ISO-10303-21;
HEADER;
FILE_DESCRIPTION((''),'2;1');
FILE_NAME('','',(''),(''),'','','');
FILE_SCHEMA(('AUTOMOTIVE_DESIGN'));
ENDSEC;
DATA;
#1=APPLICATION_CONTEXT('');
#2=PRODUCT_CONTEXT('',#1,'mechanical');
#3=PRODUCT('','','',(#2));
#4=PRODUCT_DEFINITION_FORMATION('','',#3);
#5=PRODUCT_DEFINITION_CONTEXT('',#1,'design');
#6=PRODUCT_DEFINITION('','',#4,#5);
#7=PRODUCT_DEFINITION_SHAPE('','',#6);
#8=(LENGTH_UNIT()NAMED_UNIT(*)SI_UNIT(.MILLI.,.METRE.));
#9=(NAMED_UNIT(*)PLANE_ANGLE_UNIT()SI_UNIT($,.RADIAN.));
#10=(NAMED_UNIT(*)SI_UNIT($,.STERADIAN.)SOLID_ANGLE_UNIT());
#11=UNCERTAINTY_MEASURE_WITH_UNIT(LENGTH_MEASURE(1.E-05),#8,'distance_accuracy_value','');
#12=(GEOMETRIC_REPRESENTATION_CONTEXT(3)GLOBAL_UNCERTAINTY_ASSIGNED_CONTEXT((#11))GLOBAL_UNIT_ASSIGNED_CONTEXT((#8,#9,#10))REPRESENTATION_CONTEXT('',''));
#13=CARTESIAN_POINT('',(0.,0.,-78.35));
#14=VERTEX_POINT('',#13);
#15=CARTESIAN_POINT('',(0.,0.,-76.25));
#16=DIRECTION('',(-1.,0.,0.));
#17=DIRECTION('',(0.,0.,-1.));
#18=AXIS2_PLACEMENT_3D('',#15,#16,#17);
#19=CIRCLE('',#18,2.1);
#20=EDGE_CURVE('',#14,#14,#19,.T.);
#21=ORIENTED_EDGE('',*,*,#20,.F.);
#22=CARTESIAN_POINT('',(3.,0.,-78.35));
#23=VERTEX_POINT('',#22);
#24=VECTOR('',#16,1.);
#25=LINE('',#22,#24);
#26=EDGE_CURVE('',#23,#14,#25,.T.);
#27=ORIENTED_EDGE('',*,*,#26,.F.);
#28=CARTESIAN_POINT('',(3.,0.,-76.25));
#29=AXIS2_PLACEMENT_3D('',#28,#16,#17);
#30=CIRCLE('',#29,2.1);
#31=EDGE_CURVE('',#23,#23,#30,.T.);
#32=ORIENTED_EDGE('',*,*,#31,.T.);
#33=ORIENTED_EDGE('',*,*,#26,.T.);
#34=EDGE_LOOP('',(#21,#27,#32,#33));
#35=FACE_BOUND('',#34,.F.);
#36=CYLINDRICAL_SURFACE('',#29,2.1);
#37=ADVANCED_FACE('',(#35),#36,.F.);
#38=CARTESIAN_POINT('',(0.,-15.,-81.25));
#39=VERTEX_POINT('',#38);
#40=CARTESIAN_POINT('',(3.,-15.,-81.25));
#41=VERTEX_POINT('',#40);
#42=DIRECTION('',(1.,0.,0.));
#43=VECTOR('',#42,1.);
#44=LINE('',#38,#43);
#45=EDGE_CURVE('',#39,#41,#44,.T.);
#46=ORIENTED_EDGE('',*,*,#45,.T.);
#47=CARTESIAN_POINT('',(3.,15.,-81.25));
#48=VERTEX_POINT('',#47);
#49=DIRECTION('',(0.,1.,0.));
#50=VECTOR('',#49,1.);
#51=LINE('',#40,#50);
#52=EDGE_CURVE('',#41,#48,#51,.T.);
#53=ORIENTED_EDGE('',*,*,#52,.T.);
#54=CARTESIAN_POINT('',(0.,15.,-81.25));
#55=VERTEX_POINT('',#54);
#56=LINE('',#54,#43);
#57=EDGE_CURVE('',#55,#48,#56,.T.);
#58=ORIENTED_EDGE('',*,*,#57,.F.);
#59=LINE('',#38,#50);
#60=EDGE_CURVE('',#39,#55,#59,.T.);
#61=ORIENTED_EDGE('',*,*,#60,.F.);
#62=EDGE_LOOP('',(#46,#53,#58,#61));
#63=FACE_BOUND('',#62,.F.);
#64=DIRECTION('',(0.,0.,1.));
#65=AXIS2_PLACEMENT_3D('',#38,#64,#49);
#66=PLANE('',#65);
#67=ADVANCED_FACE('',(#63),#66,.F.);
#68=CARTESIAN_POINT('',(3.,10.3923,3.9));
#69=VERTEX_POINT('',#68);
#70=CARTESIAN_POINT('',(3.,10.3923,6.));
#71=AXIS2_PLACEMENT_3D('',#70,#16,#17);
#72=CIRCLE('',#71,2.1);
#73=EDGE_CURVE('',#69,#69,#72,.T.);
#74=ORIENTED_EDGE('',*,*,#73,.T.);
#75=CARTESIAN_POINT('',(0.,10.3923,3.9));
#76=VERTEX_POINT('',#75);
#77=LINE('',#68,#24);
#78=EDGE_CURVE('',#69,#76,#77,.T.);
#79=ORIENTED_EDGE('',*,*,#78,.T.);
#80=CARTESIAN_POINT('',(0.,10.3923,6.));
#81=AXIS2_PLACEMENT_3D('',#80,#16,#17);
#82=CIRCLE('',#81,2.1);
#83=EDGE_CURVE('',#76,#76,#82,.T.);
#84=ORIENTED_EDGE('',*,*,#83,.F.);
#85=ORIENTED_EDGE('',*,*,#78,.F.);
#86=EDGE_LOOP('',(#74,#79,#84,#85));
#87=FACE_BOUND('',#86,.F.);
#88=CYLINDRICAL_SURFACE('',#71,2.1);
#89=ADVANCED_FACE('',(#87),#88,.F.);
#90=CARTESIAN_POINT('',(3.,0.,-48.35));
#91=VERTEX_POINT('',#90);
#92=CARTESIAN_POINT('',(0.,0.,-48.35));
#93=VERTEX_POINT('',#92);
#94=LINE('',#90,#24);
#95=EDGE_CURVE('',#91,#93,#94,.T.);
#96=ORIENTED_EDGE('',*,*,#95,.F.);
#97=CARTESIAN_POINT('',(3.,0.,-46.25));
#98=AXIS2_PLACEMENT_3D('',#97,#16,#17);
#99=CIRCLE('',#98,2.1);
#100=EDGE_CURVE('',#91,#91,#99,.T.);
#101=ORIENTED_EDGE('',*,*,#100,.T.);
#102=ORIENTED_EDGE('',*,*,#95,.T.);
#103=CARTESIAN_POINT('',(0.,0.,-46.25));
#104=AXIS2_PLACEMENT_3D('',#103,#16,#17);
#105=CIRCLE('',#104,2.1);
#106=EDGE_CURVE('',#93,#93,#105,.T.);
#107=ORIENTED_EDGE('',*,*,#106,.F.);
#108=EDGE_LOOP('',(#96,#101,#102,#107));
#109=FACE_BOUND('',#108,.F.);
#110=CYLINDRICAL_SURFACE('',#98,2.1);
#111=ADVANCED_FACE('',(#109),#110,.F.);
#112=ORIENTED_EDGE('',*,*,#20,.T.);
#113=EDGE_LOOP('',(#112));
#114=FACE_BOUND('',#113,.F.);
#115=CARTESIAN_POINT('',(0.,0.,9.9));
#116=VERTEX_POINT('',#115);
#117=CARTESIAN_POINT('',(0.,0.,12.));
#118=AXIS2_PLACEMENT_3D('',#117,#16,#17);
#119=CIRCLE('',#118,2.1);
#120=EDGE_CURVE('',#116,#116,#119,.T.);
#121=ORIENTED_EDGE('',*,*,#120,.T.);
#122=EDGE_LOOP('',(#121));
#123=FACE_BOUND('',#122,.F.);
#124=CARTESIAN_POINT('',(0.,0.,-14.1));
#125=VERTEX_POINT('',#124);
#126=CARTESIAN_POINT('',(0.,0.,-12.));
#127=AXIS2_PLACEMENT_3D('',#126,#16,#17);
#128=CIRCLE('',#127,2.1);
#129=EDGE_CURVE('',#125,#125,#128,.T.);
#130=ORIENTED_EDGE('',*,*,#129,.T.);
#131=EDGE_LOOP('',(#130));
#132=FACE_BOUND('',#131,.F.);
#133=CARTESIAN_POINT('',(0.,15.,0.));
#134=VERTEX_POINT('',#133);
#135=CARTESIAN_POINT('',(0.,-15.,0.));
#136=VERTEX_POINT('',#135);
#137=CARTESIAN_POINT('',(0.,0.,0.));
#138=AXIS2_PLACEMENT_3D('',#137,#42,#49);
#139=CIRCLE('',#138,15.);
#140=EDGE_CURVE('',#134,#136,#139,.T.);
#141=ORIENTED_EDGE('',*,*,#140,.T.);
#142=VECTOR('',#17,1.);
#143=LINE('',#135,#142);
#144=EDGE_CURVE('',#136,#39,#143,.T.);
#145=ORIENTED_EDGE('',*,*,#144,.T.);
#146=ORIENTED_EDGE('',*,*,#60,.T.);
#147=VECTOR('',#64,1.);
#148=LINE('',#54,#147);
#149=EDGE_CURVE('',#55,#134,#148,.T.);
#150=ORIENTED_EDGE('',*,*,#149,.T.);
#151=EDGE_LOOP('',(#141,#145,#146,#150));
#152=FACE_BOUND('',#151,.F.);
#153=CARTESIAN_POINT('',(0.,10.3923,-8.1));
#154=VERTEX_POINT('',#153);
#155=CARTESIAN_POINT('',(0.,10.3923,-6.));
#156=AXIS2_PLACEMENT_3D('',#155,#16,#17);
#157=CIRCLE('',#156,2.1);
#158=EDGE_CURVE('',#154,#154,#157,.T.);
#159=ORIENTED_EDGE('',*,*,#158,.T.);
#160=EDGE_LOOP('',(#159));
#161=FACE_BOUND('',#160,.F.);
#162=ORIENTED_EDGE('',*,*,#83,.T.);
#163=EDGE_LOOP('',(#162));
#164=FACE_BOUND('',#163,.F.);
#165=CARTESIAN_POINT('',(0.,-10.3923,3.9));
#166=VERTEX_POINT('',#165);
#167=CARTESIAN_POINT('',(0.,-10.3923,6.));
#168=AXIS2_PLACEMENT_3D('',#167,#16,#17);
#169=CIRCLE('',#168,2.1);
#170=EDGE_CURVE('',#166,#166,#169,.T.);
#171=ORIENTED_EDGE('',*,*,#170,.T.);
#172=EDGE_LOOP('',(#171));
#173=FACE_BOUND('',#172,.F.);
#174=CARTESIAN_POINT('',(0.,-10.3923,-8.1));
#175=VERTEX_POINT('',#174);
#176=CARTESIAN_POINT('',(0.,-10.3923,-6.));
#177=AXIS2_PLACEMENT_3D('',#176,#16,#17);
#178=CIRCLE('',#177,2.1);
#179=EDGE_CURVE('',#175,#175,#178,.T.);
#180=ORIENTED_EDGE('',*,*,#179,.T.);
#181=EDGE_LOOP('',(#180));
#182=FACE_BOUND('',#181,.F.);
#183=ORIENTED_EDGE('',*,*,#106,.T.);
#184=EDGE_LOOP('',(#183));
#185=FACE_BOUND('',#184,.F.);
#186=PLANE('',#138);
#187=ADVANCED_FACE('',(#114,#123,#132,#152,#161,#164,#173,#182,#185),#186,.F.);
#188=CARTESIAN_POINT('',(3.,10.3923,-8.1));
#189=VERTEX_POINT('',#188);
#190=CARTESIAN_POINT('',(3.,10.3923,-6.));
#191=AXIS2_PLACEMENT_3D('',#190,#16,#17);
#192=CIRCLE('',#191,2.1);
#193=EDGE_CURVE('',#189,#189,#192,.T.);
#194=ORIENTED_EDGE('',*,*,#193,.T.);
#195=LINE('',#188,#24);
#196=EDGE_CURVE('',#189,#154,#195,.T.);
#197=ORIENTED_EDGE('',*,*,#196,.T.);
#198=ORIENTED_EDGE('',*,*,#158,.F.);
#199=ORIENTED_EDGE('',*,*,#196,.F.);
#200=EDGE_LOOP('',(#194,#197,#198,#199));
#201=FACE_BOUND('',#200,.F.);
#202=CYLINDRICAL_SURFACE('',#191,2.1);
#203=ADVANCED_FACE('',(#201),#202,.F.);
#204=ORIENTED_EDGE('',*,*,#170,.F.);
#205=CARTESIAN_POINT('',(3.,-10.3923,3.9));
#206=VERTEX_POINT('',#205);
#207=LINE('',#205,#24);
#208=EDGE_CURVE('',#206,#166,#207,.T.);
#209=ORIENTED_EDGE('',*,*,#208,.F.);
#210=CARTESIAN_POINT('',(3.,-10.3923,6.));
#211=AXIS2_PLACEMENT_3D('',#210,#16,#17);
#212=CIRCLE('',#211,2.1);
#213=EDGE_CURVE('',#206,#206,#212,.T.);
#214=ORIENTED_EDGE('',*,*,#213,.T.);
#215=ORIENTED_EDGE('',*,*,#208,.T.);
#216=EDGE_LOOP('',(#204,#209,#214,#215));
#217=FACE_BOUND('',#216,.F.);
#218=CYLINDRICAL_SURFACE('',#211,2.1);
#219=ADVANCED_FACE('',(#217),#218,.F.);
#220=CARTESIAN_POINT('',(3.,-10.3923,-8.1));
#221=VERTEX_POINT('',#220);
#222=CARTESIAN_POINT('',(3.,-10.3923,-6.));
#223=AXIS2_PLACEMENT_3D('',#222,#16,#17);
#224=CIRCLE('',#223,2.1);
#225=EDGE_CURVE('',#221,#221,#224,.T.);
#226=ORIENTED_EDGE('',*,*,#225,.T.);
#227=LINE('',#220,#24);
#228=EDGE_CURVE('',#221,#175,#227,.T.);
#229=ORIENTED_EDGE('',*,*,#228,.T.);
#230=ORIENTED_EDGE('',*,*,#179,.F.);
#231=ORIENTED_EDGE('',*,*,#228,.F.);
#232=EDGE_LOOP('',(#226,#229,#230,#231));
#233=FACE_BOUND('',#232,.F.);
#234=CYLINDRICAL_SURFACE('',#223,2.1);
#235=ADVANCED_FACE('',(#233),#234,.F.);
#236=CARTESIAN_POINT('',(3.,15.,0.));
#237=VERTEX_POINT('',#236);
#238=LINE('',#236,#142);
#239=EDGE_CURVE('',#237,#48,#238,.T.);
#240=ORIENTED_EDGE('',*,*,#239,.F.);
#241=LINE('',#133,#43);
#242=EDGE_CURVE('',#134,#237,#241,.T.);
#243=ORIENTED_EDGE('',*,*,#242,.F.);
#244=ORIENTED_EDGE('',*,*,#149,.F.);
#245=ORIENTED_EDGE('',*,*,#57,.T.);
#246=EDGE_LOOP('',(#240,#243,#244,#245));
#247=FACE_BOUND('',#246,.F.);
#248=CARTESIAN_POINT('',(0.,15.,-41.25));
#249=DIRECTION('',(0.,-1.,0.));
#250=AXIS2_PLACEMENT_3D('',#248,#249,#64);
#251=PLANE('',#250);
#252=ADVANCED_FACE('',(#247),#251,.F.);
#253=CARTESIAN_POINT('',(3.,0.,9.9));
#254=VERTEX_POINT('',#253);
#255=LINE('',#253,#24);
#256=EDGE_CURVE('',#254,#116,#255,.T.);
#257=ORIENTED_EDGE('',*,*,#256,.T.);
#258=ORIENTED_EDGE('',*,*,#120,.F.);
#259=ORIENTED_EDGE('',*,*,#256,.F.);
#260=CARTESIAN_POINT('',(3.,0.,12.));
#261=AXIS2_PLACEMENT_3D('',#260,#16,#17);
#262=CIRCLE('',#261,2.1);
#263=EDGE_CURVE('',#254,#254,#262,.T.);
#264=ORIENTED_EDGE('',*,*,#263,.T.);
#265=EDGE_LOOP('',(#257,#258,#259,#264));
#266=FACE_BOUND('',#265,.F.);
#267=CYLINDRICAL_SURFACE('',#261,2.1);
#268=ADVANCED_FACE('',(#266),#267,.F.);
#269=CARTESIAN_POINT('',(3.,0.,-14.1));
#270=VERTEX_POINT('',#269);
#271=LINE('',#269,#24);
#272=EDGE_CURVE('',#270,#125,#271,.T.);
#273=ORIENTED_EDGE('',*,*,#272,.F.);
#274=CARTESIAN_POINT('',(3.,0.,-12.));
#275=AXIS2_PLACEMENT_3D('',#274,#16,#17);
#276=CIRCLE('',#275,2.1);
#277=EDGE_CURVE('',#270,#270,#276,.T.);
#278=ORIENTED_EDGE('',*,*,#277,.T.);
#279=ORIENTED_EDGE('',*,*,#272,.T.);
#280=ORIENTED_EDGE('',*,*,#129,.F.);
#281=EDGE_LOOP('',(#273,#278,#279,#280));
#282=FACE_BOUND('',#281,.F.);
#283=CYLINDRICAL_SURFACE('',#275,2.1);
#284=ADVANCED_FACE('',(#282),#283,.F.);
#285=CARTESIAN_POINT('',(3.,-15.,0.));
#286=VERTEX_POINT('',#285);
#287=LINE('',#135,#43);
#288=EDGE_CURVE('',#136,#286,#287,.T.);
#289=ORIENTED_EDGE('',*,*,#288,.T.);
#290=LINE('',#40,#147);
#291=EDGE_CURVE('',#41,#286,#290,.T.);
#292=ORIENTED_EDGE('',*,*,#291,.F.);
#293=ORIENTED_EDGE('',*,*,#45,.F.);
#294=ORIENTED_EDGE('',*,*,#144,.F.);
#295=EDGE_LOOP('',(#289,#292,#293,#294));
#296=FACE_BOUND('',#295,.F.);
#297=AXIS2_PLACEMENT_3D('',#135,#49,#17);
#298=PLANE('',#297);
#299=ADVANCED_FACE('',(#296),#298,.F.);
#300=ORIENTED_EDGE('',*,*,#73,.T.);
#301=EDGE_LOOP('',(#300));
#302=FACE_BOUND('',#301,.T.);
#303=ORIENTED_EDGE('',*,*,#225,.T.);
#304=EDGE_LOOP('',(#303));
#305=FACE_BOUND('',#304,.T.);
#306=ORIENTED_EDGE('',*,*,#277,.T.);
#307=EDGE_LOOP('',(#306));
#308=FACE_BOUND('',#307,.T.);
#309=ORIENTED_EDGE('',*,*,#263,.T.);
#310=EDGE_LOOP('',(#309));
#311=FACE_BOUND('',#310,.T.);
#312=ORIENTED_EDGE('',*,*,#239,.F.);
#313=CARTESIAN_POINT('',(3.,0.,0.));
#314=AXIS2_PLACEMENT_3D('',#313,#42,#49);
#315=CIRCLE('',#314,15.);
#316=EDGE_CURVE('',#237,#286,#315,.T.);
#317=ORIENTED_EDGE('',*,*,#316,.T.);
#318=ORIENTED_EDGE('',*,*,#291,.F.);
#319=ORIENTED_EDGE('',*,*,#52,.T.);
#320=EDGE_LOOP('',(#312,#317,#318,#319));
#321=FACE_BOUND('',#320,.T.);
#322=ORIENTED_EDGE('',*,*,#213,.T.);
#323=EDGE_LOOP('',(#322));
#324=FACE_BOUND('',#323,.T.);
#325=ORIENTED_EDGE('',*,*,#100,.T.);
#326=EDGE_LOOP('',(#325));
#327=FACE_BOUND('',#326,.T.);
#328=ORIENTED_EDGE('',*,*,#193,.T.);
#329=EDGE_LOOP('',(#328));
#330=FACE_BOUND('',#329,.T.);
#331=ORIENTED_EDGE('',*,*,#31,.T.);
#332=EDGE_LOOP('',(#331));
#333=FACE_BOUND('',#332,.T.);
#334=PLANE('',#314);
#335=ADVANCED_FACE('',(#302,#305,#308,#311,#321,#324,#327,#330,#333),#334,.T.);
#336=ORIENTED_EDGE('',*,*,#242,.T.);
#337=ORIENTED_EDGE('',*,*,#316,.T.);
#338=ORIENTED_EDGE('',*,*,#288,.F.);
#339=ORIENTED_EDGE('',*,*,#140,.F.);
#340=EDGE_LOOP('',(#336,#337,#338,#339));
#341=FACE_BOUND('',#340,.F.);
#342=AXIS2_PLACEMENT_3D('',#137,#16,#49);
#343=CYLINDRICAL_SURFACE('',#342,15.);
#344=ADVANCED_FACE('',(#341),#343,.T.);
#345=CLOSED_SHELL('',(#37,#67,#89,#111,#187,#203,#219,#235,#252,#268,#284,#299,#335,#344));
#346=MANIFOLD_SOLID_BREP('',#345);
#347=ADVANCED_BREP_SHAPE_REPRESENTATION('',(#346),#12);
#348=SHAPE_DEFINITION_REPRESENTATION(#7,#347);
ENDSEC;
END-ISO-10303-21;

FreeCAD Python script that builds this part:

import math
import FreeCAD as App
import Part
import Sketcher

V = App.Vector

doc = App.newDocument("Part")
params = doc.addObject("Spreadsheet::Sheet", "Params")
for row, (alias, value) in enumerate([
    ("sketch1_radius", "15 mm"),
    ("sketch1_height", "81.25 mm"),
    ("pad1_length", "3 mm"),
    ("sketch2_diameter", "4.2 mm"),
    ("hole_diameter", "4.2 mm"),
    ("sketch3_diameter", "4.2 mm"),
    ("hole2_diameter", "4.2 mm"),
], start=1):
    params.set(f"A{row}", alias)
    params.set(f"B{row}", "=" + value)
    params.setAlias(f"B{row}", alias)

body = doc.addObject("PartDesign::Body", "Body")

# Sketch on YZ plane
sketch1 = body.newObject("Sketcher::SketchObject", "Sketch")
sketch1.AttachmentSupport = (doc.getObject("YZ_Plane"), [""])
sketch1.MapMode = "FlatFace"
sketch1.addGeometry([
    Part.ArcOfCircle(Part.Circle(V(0, 0, 0), V(0, 0, 1), 15), math.radians(0), math.radians(180)),
    Part.LineSegment(V(-15, 0, 0), V(-15, -81, 0)),
    Part.LineSegment(V(-15, -81, 0), V(15, -81, 0)),
    Part.LineSegment(V(15, -81, 0), V(15, 0, 0)),
], False)
sketch1.addConstraint([
    Sketcher.Constraint("Tangent", 0, 2, 1, 1),
    Sketcher.Constraint("Coincident", 1, 2, 2, 1),
    Sketcher.Constraint("Coincident", 2, 2, 3, 1),
    Sketcher.Constraint("Tangent", 3, 2, 0, 1),
    Sketcher.Constraint("Vertical", 1),
    Sketcher.Constraint("Horizontal", 2),
    Sketcher.Constraint("Vertical", 3),
    Sketcher.Constraint("Coincident", 0, 3, -1, 1),
    Sketcher.Constraint("Radius", 0, 15.0),
    Sketcher.Constraint("DistanceY", 1, 2, 1, 1, 81.25),
])
sketch1.setExpression("Constraints[8]", "Params.sketch1_radius")
sketch1.setExpression("Constraints[9]", "Params.sketch1_height")
pad1 = body.newObject("PartDesign::Pad", "Pad")
pad1.Profile = sketch1
pad1.setExpression("Length", "Params.pad1_length")

# Sketch on YZ plane
sketch2 = body.newObject("Sketcher::SketchObject", "Sketch001")
sketch2.AttachmentSupport = (doc.getObject("YZ_Plane"), [""])
sketch2.MapMode = "FlatFace"
sketch2.AttachmentOffset = App.Placement(V(0, 0, 3), App.Rotation())
sketch2.addGeometry([
    Part.Circle(V(0, -12, 0), V(0, 0, 1), 2.1),  # 0
    Part.Circle(V(10.4, -6, 0), V(0, 0, 1), 2.1),  # 1
    Part.Circle(V(10.4, 6, 0), V(0, 0, 1), 2.1),  # 2
    Part.Circle(V(0, 12, 0), V(0, 0, 1), 2.1),  # 3
    Part.Circle(V(-10.4, 6, 0), V(0, 0, 1), 2.1),  # 4
    Part.Circle(V(-10.4, -6, 0), V(0, 0, 1), 2.1),  # 5
], False)
sketch2.addConstraint([
    Sketcher.Constraint("Equal", 0, 1),
    Sketcher.Constraint("Equal", 1, 2),
    Sketcher.Constraint("Equal", 2, 3),
    Sketcher.Constraint("Equal", 3, 4),
    Sketcher.Constraint("Equal", 4, 5),
    Sketcher.Constraint("Symmetric", 0, 3, 3, 3, -1, 1),
    Sketcher.Constraint("Symmetric", 1, 3, 4, 3, -1, 1),
    Sketcher.Constraint("Symmetric", 2, 3, 5, 3, -1, 1),
    Sketcher.Constraint("Symmetric", 2, 3, 4, 3, -2),
    Sketcher.Constraint("PointOnObject", 0, 3, -2),
    Sketcher.Constraint("Diameter", 0, 4.2),
    Sketcher.Constraint("DistanceY", 0, 3, -1, 1, 12.0),
    Sketcher.Constraint("DistanceY", 1, 3, -1, 1, 6.0),
    Sketcher.Constraint("DistanceX", -1, 1, 1, 3, 10.3923),
])
sketch2.setExpression("Constraints[10]", "Params.sketch2_diameter")
doc.recompute()
hole = body.newObject("PartDesign::Hole", "Hole")
hole.Profile = sketch2
hole.ThreadType = "None"
hole.setExpression("Diameter", "Params.hole_diameter")
hole.DepthType = "ThroughAll"

# Sketch on YZ plane
sketch3 = body.newObject("Sketcher::SketchObject", "Sketch002")
sketch3.AttachmentSupport = (doc.getObject("YZ_Plane"), [""])
sketch3.MapMode = "FlatFace"
sketch3.AttachmentOffset = App.Placement(V(0, 0, 3), App.Rotation())
sketch3.addGeometry([
    Part.Circle(V(0, -76.2, 0), V(0, 0, 1), 2.1),
    Part.Circle(V(0, -46.2, 0), V(0, 0, 1), 2.1),
], False)
sketch3.addConstraint([
    Sketcher.Constraint("Equal", 0, 1),
    Sketcher.Constraint("PointOnObject", 0, 3, -2),
    Sketcher.Constraint("PointOnObject", 1, 3, -2),
    Sketcher.Constraint("Diameter", 0, 4.2),
    Sketcher.Constraint("DistanceY", 0, 3, 1, 3, 30.0),
    Sketcher.Constraint("DistanceY", 0, 3, -1, 1, 76.25),
])
sketch3.setExpression("Constraints[3]", "Params.sketch3_diameter")
doc.recompute()
hole2 = body.newObject("PartDesign::Hole", "Hole001")
hole2.Profile = sketch3
hole2.ThreadType = "None"
hole2.setExpression("Diameter", "Params.hole2_diameter")
hole2.DepthType = "ThroughAll"

doc.recompute()
